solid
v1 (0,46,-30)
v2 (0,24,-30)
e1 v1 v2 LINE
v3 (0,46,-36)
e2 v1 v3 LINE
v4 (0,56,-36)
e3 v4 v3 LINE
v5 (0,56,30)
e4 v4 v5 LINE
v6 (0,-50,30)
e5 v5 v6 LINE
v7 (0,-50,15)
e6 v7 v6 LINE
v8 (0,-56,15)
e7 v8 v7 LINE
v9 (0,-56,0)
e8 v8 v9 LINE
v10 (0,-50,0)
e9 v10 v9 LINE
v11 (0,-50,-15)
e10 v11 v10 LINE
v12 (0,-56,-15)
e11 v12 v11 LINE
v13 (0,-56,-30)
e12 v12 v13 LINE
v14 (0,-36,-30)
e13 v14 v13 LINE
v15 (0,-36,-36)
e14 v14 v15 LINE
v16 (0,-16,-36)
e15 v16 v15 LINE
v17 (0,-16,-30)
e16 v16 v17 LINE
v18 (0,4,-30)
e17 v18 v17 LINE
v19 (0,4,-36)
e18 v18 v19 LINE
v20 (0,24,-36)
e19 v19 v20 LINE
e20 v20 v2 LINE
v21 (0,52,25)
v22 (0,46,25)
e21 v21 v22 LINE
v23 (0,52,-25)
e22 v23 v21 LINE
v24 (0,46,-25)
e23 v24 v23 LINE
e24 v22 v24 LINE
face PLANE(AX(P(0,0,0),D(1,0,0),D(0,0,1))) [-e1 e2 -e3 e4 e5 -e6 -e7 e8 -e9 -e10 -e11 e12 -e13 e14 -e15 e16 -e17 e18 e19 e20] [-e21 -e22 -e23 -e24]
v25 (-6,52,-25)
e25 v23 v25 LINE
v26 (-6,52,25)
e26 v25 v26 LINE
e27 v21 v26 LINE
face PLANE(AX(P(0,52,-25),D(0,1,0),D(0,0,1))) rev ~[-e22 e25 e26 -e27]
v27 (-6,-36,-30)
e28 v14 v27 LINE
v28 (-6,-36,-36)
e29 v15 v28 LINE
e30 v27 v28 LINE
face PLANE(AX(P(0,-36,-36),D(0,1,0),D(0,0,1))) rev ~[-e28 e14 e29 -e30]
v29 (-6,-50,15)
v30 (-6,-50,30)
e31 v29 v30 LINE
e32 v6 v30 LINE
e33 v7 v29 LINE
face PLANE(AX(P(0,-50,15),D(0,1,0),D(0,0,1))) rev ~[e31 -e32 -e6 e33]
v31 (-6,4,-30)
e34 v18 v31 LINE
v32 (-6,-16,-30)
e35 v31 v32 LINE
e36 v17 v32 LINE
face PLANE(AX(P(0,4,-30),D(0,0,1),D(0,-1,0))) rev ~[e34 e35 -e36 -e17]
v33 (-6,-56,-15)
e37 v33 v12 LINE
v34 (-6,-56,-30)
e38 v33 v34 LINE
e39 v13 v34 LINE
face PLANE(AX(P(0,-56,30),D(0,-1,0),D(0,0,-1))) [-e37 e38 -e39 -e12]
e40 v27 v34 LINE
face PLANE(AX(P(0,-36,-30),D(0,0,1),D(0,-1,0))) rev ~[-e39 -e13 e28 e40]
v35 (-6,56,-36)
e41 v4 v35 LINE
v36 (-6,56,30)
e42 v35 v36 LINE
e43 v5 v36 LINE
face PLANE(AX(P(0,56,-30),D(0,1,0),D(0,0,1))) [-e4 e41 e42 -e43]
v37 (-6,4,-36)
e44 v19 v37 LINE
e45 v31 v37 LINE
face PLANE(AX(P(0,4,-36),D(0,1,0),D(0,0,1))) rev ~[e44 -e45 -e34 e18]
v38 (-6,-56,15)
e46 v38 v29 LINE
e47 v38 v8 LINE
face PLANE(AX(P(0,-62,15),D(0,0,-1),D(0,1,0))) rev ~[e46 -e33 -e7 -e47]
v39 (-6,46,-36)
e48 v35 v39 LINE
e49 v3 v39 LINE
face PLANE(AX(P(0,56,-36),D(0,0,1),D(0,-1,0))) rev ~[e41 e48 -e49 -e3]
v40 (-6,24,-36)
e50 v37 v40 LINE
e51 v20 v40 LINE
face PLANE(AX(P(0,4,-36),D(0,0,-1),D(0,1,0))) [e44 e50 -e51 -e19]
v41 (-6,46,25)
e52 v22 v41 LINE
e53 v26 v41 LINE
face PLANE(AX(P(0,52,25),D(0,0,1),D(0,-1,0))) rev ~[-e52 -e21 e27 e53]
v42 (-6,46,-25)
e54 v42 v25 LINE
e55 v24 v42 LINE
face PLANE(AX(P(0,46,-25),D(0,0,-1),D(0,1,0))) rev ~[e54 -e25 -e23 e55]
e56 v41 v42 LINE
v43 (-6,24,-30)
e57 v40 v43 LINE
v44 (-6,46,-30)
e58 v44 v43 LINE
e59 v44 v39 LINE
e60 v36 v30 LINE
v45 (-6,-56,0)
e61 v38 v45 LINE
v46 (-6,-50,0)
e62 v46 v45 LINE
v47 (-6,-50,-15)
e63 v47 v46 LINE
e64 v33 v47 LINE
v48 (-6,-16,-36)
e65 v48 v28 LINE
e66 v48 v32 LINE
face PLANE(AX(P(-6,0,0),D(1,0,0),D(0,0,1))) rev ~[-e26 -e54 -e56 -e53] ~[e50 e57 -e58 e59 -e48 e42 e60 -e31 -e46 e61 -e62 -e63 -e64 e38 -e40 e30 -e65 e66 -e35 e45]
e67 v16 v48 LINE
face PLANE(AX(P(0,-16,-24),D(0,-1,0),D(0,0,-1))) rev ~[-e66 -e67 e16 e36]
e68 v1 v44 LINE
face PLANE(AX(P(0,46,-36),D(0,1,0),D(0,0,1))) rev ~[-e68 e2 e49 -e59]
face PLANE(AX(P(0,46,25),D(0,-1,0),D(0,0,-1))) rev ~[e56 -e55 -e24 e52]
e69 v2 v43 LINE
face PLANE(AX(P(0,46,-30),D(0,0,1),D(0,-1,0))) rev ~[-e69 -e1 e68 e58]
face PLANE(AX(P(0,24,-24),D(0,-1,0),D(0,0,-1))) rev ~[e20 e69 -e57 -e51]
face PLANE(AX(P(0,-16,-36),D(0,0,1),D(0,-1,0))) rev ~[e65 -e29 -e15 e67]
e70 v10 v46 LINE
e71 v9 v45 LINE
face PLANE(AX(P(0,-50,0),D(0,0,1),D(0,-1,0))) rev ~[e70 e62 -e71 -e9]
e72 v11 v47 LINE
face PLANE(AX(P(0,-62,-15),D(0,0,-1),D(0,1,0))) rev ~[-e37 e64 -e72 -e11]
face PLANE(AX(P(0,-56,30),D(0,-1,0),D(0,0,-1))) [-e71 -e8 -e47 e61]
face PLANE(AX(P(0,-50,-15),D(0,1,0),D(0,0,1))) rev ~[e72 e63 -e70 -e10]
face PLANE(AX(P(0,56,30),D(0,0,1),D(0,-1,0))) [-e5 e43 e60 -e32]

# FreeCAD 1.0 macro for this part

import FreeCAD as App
import Part
import Sketcher
from FreeCAD import Vector
Q = App.Units.Quantity


def add_polygon(sketch, points):
    """Adds a closed chain of lines whose ends are joined by coincident constraints."""
    first, n = sketch.GeometryCount, len(points)
    for a, b in zip(points, points[1:] + points[:1]):
        sketch.addGeometry(Part.LineSegment(App.Vector(*a, 0), App.Vector(*b, 0)), False)
    for i in range(n):
        sketch.addConstraint(Sketcher.Constraint("Coincident", first + i, 2, first + (i + 1) % n, 1))

doc = App.newDocument("Part")
body = doc.addObject("PartDesign::Body", "Body")

sketch1 = body.newObject("Sketcher::SketchObject", "Sketch")
sketch1.AttachmentSupport = (doc.getObject("YZ_Plane"), [""])
sketch1.MapMode = "FlatFace"
add_polygon(sketch1, [(-56, 30), (-56, -30), (56, -30), (56, 30)])
sketch1.addConstraint(Sketcher.Constraint("Vertical", 0))
sketch1.addConstraint(Sketcher.Constraint("Horizontal", 1))
sketch1.addConstraint(Sketcher.Constraint("Vertical", 2))
sketch1.addConstraint(Sketcher.Constraint("Horizontal", 3))
sketch1.addConstraint(Sketcher.Constraint("Symmetric", 0, 2, 2, 2, -1, 1))
sketch1.addConstraint(Sketcher.Constraint("DistanceX", 0, 2, -1, 1, Q("56 mm")))
sketch1.addConstraint(Sketcher.Constraint("DistanceY", 0, 2, 0, 1, Q("60 mm")))
pad1 = body.newObject("PartDesign::Pad", "Pad")
pad1.Profile = sketch1
pad1.Length = 6
pad1.Reversed = True

sketch2 = body.newObject("Sketcher::SketchObject", "Sketch001")
sketch2.AttachmentSupport = (doc.getObject("YZ_Plane"), [""])
sketch2.MapMode = "FlatFace"
add_polygon(sketch2, [(-62, 30), (-62, 15), (-50, 15), (-50, 30)])
sketch2.addConstraint(Sketcher.Constraint("Vertical", 0))
sketch2.addConstraint(Sketcher.Constraint("Horizontal", 1))
sketch2.addConstraint(Sketcher.Constraint("Vertical", 2))
sketch2.addConstraint(Sketcher.Constraint("Horizontal", 3))
sketch2.addConstraint(Sketcher.Constraint("DistanceX", 0, 2, -1, 1, Q("62 mm")))
sketch2.addConstraint(Sketcher.Constraint("DistanceX", 1, 2, -1, 1, Q("50 mm")))
sketch2.addConstraint(Sketcher.Constraint("DistanceY", 0, 2, 0, 1, Q("15 mm")))
sketch2.addConstraint(Sketcher.Constraint("DistanceY", -1, 1, 0, 2, Q("15 mm")))
pocket1 = body.newObject("PartDesign::Pocket", "Pocket")
pocket1.Profile = sketch2
pocket1.Type = "ThroughAll"

sketch3 = body.newObject("Sketcher::SketchObject", "Sketch002")
sketch3.AttachmentSupport = (doc.getObject("YZ_Plane"), [""])
sketch3.MapMode = "FlatFace"
add_polygon(sketch3, [(-62, 0), (-62, -15), (-50, -15), (-50, 0)])
sketch3.addConstraint(Sketcher.Constraint("Vertical", 0))
sketch3.addConstraint(Sketcher.Constraint("Horizontal", 1))
sketch3.addConstraint(Sketcher.Constraint("Vertical", 2))
sketch3.addConstraint(Sketcher.Constraint("Horizontal", 3))
sketch3.addConstraint(Sketcher.Constraint("PointOnObject", 2, 2, -1))
sketch3.addConstraint(Sketcher.Constraint("DistanceX", 0, 2, -1, 1, Q("62 mm")))
sketch3.addConstraint(Sketcher.Constraint("DistanceX", 1, 2, -1, 1, Q("50 mm")))
sketch3.addConstraint(Sketcher.Constraint("DistanceY", 0, 2, 0, 1, Q("15 mm")))
pocket2 = body.newObject("PartDesign::Pocket", "Pocket001")
pocket2.Profile = sketch3
pocket2.Type = "ThroughAll"

sketch4 = body.newObject("Sketcher::SketchObject", "Sketch003")
sketch4.AttachmentSupport = (doc.getObject("YZ_Plane"), [""])
sketch4.MapMode = "FlatFace"
add_polygon(sketch4, [(-76, -24), (-76, -36), (-36, -36), (-36, -24)])
sketch4.addConstraint(Sketcher.Constraint("Vertical", 0))
sketch4.addConstraint(Sketcher.Constraint("Horizontal", 1))
sketch4.addConstraint(Sketcher.Constraint("Vertical", 2))
sketch4.addConstraint(Sketcher.Constraint("Horizontal", 3))
sketch4.addConstraint(Sketcher.Constraint("DistanceX", 0, 2, -1, 1, Q("76 mm")))
sketch4.addConstraint(Sketcher.Constraint("DistanceY", 0, 2, -1, 1, Q("36 mm")))
sketch4.addConstraint(Sketcher.Constraint("DistanceX", 1, 2, -1, 1, Q("36 mm")))
sketch4.addConstraint(Sketcher.Constraint("DistanceY", 0, 2, 0, 1, Q("12 mm")))
pocket3 = body.newObject("PartDesign::Pocket", "Pocket002")
pocket3.Profile = sketch4
pocket3.Type = "ThroughAll"

sketch5 = body.newObject("Sketcher::SketchObject", "Sketch004")
sketch5.AttachmentSupport = (doc.getObject("YZ_Plane"), [""])
sketch5.MapMode = "FlatFace"
add_polygon(sketch5, [(-16, -24), (-16, -36), (4, -36), (4, -24)])
sketch5.addConstraint(Sketcher.Constraint("Vertical", 0))
sketch5.addConstraint(Sketcher.Constraint("Horizontal", 1))
sketch5.addConstraint(Sketcher.Constraint("Vertical", 2))
sketch5.addConstraint(Sketcher.Constraint("Horizontal", 3))
sketch5.addConstraint(Sketcher.Constraint("DistanceX", 0, 2, -1, 1, Q("16 mm")))
sketch5.addConstraint(Sketcher.Constraint("DistanceX", -1, 1, 1, 2, Q("4 mm")))
sketch5.addConstraint(Sketcher.Constraint("DistanceY", 0, 2, 0, 1, Q("12 mm")))
sketch5.addConstraint(Sketcher.Constraint("DistanceY", 0, 2, -1, 1, Q("36 mm")))
pocket4 = body.newObject("PartDesign::Pocket", "Pocket003")
pocket4.Profile = sketch5
pocket4.Type = "ThroughAll"

sketch6 = body.newObject("Sketcher::SketchObject", "Sketch005")
sketch6.AttachmentSupport = (doc.getObject("YZ_Plane"), [""])
sketch6.MapMode = "FlatFace"
add_polygon(sketch6, [(24, -24), (24, -36), (46, -36), (46, -24)])
sketch6.addConstraint(Sketcher.Constraint("Vertical", 0))
sketch6.addConstraint(Sketcher.Constraint("Horizontal", 1))
sketch6.addConstraint(Sketcher.Constraint("Vertical", 2))
sketch6.addConstraint(Sketcher.Constraint("Horizontal", 3))
sketch6.addConstraint(Sketcher.Constraint("DistanceX", -1, 1, 0, 2, Q("24 mm")))
sketch6.addConstraint(Sketcher.Constraint("DistanceX", -1, 1, 1, 2, Q("46 mm")))
sketch6.addConstraint(Sketcher.Constraint("DistanceY", 2, 2, -1, 1, Q("24 mm")))
sketch6.addConstraint(Sketcher.Constraint("DistanceY", 0, 2, 0, 1, Q("12 mm")))
pocket5 = body.newObject("PartDesign::Pocket", "Pocket004")
pocket5.Profile = sketch6
pocket5.Type = "ThroughAll"

sketch7 = body.newObject("Sketcher::SketchObject", "Sketch006")
sketch7.AttachmentSupport = (doc.getObject("YZ_Plane"), [""])
sketch7.MapMode = "FlatFace"
add_polygon(sketch7, [(-36, -36), (-16, -36), (-16, -24), (-36, -24)])
sketch7.addConstraint(Sketcher.Constraint("Horizontal", 0))
sketch7.addConstraint(Sketcher.Constraint("Vertical", 1))
sketch7.addConstraint(Sketcher.Constraint("Horizontal", 2))
sketch7.addConstraint(Sketcher.Constraint("Vertical", 3))
sketch7.addConstraint(Sketcher.Constraint("DistanceX", 0, 1, 0, 2, Q("20 mm")))
sketch7.addConstraint(Sketcher.Constraint("DistanceY", 1, 1, 1, 2, Q("12 mm")))
sketch7.addConstraint(Sketcher.Constraint("DistanceX", 0, 2, -1, 1, Q("16 mm")))
sketch7.addConstraint(Sketcher.Constraint("DistanceY", 0, 2, -1, 1, Q("36 mm")))
pad2 = body.newObject("PartDesign::Pad", "Pad001")
pad2.Profile = sketch7
pad2.Length = 6
pad2.Reversed = True

sketch8 = body.newObject("Sketcher::SketchObject", "Sketch007")
sketch8.AttachmentSupport = (doc.getObject("YZ_Plane"), [""])
sketch8.MapMode = "FlatFace"
add_polygon(sketch8, [(4, -24), (4, -36), (24, -36), (24, -24)])
sketch8.addConstraint(Sketcher.Constraint("Vertical", 0))
sketch8.addConstraint(Sketcher.Constraint("Horizontal", 1))
sketch8.addConstraint(Sketcher.Constraint("Vertical", 2))
sketch8.addConstraint(Sketcher.Constraint("Horizontal", 3))
sketch8.addConstraint(Sketcher.Constraint("DistanceX", 1, 1, 1, 2, Q("20 mm")))
sketch8.addConstraint(Sketcher.Constraint("DistanceY", 0, 2, 0, 1, Q("12 mm")))
sketch8.addConstraint(Sketcher.Constraint("DistanceX", -1, 1, 0, 2, Q("4 mm")))
sketch8.addConstraint(Sketcher.Constraint("DistanceY", 0, 2, -1, 1, Q("36 mm")))
pad3 = body.newObject("PartDesign::Pad", "Pad002")
pad3.Profile = sketch8
pad3.Length = 6
pad3.Reversed = True

sketch9 = body.newObject("Sketcher::SketchObject", "Sketch008")
sketch9.AttachmentSupport = (doc.getObject("YZ_Plane"), [""])
sketch9.MapMode = "FlatFace"
add_polygon(sketch9, [(46, -36), (56, -36), (56, -24), (46, -24)])
sketch9.addConstraint(Sketcher.Constraint("Horizontal", 0))
sketch9.addConstraint(Sketcher.Constraint("Vertical", 1))
sketch9.addConstraint(Sketcher.Constraint("Horizontal", 2))
sketch9.addConstraint(Sketcher.Constraint("Vertical", 3))
sketch9.addConstraint(Sketcher.Constraint("DistanceX", 0, 1, 0, 2, Q("10 mm")))
sketch9.addConstraint(Sketcher.Constraint("DistanceY", 1, 1, 1, 2, Q("12 mm")))
sketch9.addConstraint(Sketcher.Constraint("DistanceX", -1, 1, 0, 2, Q("56 mm")))
sketch9.addConstraint(Sketcher.Constraint("DistanceY", 0, 2, -1, 1, Q("36 mm")))
pad4 = body.newObject("PartDesign::Pad", "Pad003")
pad4.Profile = sketch9
pad4.Length = 6
pad4.Reversed = True

sketch10 = body.newObject("Sketcher::SketchObject", "Sketch009")
sketch10.AttachmentSupport = (doc.getObject("YZ_Plane"), [""])
sketch10.MapMode = "FlatFace"
add_polygon(sketch10, [(-36, -18), (-56, -18), (-56, -30), (-36, -30)])
add_polygon(sketch10, [(4, -18), (-16, -18), (-16, -30), (4, -30)])
add_polygon(sketch10, [(46, -18), (24, -18), (24, -30), (46, -30)])
sketch10.addConstraint(Sketcher.Constraint("Horizontal", 0))
sketch10.addConstraint(Sketcher.Constraint("Vertical", 1))
sketch10.addConstraint(Sketcher.Constraint("Horizontal", 2))
sketch10.addConstraint(Sketcher.Constraint("Vertical", 3))
sketch10.addConstraint(Sketcher.Constraint("Horizontal", 4))
sketch10.addConstraint(Sketcher.Constraint("Vertical", 5))
sketch10.addConstraint(Sketcher.Constraint("Horizontal", 6))
sketch10.addConstraint(Sketcher.Constraint("Vertical", 7))
sketch10.addConstraint(Sketcher.Constraint("Horizontal", 8))
sketch10.addConstraint(Sketcher.Constraint("Vertical", 9))
sketch10.addConstraint(Sketcher.Constraint("Horizontal", 10))
sketch10.addConstraint(Sketcher.Constraint("Vertical", 11))
sketch10.addConstraint(Sketcher.Constraint("Horizontal", 3, 2, 4, 2))
sketch10.addConstraint(Sketcher.Constraint("Horizontal", 2, 2, 5, 2))
sketch10.addConstraint(Sketcher.Constraint("Horizontal", 7, 2, 8, 2))
sketch10.addConstraint(Sketcher.Constraint("Horizontal", 6, 2, 9, 2))
sketch10.addConstraint(Sketcher.Constraint("Equal", 2, 4))
sketch10.addConstraint(Sketcher.Constraint("DistanceX", 0, 2, 0, 1, Q("20 mm")))
sketch10.addConstraint(Sketcher.Constraint("DistanceX", 8, 2, 8, 1, Q("22 mm")))
sketch10.addConstraint(Sketcher.Constraint("DistanceY", 1, 2, 1, 1, Q("12 mm")))
sketch10.addConstraint(Sketcher.Constraint("DistanceX", 0, 2, -1, 1, Q("56 mm")))
sketch10.addConstraint(Sketcher.Constraint("DistanceY", 0, 2, -1, 1, Q("18 mm")))
sketch10.addConstraint(Sketcher.Constraint("DistanceX", 4, 2, -1, 1, Q("16 mm")))
sketch10.addConstraint(Sketcher.Constraint("DistanceX", -1, 1, 8, 2, Q("24 mm")))
pad5 = body.newObject("PartDesign::Pad", "Pad004")
pad5.Profile = sketch10
pad5.Length = 6
pad5.Reversed = True

sketch11 = body.newObject("Sketcher::SketchObject", "Sketch010")
sketch11.AttachmentSupport = (doc.getObject("YZ_Plane"), [""])
sketch11.MapMode = "FlatFace"
add_polygon(sketch11, [(46, 25), (46, -25), (52, -25), (52, 25)])
sketch11.addConstraint(Sketcher.Constraint("Vertical", 0))
sketch11.addConstraint(Sketcher.Constraint("Horizontal", 1))
sketch11.addConstraint(Sketcher.Constraint("Vertical", 2))
sketch11.addConstraint(Sketcher.Constraint("Horizontal", 3))
sketch11.addConstraint(Sketcher.Constraint("DistanceX", -1, 1, 0, 2, Q("46 mm")))
sketch11.addConstraint(Sketcher.Constraint("DistanceX", -1, 1, 1, 2, Q("52 mm")))
sketch11.addConstraint(Sketcher.Constraint("DistanceY", 0, 2, 0, 1, Q("50 mm")))
sketch11.addConstraint(Sketcher.Constraint("DistanceY", 0, 2, -1, 1, Q("25 mm")))
pocket6 = body.newObject("PartDesign::Pocket", "Pocket005")
pocket6.Profile = sketch11
pocket6.Type = "ThroughAll"

doc.recompute()
